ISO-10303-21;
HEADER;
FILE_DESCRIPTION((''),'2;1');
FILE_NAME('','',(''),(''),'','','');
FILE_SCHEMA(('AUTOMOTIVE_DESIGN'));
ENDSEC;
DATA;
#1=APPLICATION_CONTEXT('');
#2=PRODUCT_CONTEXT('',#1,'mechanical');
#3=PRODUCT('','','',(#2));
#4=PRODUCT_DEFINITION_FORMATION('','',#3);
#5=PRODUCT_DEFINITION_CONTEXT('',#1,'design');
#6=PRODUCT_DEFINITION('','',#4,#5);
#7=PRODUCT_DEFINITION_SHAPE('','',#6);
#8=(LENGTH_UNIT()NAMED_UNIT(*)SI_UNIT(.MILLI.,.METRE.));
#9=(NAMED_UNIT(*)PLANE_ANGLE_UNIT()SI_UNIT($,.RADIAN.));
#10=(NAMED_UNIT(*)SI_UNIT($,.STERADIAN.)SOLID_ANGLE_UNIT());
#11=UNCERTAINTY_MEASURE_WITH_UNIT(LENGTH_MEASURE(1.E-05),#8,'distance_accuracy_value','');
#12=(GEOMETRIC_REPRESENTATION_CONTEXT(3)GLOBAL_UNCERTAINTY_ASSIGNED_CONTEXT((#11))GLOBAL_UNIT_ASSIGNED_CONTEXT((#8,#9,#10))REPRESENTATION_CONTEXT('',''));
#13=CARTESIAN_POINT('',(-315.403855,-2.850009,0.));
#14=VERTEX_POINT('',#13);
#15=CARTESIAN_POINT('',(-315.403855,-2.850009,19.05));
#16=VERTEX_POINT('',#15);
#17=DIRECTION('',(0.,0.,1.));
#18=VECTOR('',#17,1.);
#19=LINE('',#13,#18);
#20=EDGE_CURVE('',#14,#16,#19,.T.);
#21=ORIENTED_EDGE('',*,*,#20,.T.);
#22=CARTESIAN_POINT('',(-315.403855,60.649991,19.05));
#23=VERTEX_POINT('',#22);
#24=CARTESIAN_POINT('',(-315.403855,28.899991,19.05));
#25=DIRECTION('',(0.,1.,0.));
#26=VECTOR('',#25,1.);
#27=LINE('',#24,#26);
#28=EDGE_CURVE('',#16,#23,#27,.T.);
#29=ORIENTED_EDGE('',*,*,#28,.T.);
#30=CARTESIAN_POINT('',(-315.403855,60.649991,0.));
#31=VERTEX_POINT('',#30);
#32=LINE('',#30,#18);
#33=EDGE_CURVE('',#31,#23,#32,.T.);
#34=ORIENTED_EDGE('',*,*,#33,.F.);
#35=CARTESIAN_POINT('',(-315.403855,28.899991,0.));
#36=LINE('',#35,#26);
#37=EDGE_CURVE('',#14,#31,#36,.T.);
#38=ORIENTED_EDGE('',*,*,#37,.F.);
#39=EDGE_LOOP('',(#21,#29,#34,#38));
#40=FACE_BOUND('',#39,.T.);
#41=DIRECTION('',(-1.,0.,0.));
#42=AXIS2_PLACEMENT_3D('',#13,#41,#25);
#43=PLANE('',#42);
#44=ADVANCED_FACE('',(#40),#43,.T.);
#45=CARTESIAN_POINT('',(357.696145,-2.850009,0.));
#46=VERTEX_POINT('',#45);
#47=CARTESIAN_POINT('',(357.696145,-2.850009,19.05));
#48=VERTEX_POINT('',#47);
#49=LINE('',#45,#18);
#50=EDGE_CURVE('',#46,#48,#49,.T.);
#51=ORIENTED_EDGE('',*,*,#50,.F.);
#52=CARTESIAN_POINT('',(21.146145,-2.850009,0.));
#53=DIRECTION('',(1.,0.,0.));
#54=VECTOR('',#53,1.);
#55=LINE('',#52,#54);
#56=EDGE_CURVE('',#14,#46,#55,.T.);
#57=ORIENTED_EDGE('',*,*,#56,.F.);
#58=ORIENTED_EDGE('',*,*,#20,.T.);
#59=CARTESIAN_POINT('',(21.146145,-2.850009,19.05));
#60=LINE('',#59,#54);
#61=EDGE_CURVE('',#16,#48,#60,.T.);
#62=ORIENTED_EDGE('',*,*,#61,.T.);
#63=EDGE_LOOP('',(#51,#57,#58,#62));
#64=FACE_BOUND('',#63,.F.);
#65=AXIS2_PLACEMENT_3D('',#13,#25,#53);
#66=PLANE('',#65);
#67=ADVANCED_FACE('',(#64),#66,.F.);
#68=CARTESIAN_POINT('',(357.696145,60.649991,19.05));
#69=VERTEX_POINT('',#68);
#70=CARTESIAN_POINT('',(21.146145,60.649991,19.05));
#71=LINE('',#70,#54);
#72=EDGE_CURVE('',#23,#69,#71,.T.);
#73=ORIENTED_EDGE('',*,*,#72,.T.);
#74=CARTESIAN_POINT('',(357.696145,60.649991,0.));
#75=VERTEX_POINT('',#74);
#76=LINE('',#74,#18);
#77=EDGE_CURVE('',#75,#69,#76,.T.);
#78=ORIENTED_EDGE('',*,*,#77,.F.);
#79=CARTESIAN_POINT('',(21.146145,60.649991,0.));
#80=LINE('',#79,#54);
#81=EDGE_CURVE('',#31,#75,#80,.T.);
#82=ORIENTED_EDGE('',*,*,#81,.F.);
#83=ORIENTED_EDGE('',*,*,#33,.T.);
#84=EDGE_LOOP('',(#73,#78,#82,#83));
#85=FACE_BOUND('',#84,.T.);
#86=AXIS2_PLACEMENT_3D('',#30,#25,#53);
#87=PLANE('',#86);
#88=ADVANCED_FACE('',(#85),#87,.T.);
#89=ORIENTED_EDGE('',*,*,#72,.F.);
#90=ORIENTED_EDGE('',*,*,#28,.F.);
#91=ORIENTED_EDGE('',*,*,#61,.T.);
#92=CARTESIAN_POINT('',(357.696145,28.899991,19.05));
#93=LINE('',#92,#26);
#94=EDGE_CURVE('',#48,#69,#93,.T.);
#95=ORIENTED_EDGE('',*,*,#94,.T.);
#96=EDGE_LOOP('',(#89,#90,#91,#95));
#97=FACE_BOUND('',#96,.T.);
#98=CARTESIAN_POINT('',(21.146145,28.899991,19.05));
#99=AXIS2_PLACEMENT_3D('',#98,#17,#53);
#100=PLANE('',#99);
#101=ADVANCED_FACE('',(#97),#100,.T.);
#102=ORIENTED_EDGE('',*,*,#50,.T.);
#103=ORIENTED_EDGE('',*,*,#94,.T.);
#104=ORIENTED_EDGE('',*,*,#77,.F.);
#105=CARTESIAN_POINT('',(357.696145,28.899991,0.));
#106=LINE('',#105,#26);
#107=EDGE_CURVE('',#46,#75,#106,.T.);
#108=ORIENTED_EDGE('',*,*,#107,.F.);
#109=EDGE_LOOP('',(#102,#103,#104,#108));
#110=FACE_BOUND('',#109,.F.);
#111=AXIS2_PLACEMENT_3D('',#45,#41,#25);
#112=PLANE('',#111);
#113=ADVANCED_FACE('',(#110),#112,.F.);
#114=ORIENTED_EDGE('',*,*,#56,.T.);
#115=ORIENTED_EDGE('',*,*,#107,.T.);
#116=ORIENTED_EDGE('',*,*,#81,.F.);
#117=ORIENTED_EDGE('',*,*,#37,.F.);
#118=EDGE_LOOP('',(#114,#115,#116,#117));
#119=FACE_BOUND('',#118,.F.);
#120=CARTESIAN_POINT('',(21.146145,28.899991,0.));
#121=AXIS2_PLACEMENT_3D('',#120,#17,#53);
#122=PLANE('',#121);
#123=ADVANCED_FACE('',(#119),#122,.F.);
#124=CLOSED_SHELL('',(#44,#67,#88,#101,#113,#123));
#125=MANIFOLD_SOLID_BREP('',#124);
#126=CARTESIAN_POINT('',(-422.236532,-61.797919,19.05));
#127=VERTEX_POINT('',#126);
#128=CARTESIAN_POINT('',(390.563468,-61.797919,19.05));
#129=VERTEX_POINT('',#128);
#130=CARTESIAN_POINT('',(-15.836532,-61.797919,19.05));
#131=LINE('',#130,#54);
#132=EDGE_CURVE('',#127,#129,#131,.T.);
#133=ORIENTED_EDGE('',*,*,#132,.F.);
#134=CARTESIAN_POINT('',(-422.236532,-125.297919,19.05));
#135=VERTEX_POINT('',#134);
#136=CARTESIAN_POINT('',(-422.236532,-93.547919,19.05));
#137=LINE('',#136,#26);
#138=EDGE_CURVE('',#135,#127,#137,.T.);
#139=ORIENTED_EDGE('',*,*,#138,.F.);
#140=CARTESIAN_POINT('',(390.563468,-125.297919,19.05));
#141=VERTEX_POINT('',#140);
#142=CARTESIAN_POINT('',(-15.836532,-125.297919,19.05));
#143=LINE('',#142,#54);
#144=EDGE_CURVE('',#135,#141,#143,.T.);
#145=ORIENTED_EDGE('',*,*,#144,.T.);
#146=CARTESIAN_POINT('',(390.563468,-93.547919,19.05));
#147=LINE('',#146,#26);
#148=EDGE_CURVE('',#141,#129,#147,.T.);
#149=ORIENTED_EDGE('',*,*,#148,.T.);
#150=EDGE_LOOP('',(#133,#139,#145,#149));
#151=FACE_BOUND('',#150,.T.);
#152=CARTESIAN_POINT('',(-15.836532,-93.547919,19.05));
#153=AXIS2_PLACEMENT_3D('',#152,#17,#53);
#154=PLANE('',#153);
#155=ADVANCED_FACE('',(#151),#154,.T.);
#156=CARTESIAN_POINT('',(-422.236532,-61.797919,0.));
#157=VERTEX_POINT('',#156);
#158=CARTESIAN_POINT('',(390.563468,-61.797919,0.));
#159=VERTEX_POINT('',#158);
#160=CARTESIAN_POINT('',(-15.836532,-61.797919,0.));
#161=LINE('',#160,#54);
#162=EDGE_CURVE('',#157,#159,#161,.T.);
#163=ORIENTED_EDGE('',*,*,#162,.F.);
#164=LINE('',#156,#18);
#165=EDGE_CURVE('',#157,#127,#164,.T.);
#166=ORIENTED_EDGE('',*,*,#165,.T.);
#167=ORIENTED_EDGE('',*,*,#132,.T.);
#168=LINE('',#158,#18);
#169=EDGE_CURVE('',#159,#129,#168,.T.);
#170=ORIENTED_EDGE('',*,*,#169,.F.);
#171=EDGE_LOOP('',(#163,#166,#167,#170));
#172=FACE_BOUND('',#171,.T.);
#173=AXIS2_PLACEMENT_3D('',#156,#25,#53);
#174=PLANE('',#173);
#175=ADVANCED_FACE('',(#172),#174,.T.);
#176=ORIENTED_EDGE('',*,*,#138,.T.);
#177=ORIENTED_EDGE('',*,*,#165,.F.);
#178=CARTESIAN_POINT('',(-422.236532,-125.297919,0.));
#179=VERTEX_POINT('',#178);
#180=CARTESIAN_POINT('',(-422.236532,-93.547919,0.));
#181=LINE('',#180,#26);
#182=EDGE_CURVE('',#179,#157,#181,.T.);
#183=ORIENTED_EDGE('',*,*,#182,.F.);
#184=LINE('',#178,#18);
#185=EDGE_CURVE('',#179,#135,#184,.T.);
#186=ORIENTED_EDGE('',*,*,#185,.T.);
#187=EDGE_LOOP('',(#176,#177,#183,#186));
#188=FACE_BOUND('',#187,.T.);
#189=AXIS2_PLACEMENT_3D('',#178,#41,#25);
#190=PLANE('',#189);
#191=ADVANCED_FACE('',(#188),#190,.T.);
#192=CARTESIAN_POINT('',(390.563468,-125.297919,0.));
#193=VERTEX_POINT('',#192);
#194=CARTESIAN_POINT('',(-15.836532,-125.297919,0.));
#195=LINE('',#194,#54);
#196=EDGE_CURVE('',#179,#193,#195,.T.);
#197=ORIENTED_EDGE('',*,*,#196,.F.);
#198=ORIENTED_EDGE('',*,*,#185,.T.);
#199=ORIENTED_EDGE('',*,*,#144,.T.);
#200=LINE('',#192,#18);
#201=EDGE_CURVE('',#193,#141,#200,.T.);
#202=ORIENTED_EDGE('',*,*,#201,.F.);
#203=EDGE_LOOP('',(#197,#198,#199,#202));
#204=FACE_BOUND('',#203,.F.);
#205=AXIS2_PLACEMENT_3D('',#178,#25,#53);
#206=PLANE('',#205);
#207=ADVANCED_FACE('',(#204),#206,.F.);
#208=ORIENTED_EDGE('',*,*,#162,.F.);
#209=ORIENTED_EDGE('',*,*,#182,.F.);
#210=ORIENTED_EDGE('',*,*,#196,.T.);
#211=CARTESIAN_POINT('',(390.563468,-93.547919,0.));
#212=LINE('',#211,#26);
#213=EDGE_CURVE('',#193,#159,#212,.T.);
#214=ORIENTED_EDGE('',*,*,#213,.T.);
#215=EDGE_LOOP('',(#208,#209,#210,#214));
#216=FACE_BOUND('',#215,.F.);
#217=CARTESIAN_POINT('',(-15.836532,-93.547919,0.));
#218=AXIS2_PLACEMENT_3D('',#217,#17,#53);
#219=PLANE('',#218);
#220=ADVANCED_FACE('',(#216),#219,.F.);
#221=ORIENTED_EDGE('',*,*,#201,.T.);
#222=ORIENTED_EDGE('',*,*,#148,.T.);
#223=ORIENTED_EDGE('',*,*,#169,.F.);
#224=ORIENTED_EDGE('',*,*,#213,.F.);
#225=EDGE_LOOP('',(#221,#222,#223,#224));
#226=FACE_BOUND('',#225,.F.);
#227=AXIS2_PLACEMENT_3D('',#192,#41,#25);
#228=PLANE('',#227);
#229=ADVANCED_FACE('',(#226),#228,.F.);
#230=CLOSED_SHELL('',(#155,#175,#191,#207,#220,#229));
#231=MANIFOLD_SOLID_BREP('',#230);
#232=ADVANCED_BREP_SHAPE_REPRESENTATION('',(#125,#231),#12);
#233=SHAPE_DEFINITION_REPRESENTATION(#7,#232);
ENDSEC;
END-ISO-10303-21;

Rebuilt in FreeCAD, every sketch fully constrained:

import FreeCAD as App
import Part
import Sketcher
Q = App.Units.Quantity

doc = App.newDocument("Part")
body = doc.addObject("PartDesign::Body", "Body")
body.AllowCompound = True

# Sketch on XY plane
sketch1 = body.newObject("Sketcher::SketchObject", "Sketch")
sketch1.AttachmentSupport = (doc.getObject("XY_Plane"), [""])
sketch1.MapMode = "FlatFace"
sketch1.addGeometry(Part.LineSegment(App.Vector(-315, 61, 0), App.Vector(-315, -3, 0)), False)
sketch1.addGeometry(Part.LineSegment(App.Vector(-315, -3, 0), App.Vector(358, -3, 0)), False)
sketch1.addGeometry(Part.LineSegment(App.Vector(358, -3, 0), App.Vector(358, 61, 0)), False)
sketch1.addGeometry(Part.LineSegment(App.Vector(358, 61, 0), App.Vector(-315, 61, 0)), False)
sketch1.addGeometry(Part.LineSegment(App.Vector(-422, -62, 0), App.Vector(-422, -125, 0)), False)
sketch1.addGeometry(Part.LineSegment(App.Vector(-422, -125, 0), App.Vector(391, -125, 0)), False)
sketch1.addGeometry(Part.LineSegment(App.Vector(391, -125, 0), App.Vector(391, -62, 0)), False)
sketch1.addGeometry(Part.LineSegment(App.Vector(391, -62, 0), App.Vector(-422, -62, 0)), False)
sketch1.addConstraint(Sketcher.Constraint("Coincident", 0, 2, 1, 1))
sketch1.addConstraint(Sketcher.Constraint("Coincident", 1, 2, 2, 1))
sketch1.addConstraint(Sketcher.Constraint("Coincident", 2, 2, 3, 1))
sketch1.addConstraint(Sketcher.Constraint("Coincident", 3, 2, 0, 1))
sketch1.addConstraint(Sketcher.Constraint("Coincident", 4, 2, 5, 1))
sketch1.addConstraint(Sketcher.Constraint("Coincident", 5, 2, 6, 1))
sketch1.addConstraint(Sketcher.Constraint("Coincident", 6, 2, 7, 1))
sketch1.addConstraint(Sketcher.Constraint("Coincident", 7, 2, 4, 1))
sketch1.addConstraint(Sketcher.Constraint("Vertical", 0))
sketch1.addConstraint(Sketcher.Constraint("Horizontal", 1))
sketch1.addConstraint(Sketcher.Constraint("Vertical", 2))
sketch1.addConstraint(Sketcher.Constraint("Horizontal", 3))
sketch1.addConstraint(Sketcher.Constraint("Vertical", 4))
sketch1.addConstraint(Sketcher.Constraint("Horizontal", 5))
sketch1.addConstraint(Sketcher.Constraint("Vertical", 6))
sketch1.addConstraint(Sketcher.Constraint("Horizontal", 7))
sketch1.addConstraint(Sketcher.Constraint("Equal", 2, 4))
sketch1.addConstraint(Sketcher.Constraint("DistanceX", 5, 1, 5, 2, Q("32 in")))
sketch1.addConstraint(Sketcher.Constraint("DistanceX", 1, 1, 1, 2, Q("26.5 in")))
sketch1.addConstraint(Sketcher.Constraint("DistanceY", 0, 2, 0, 1, Q("2.5 in")))
sketch1.addConstraint(Sketcher.Constraint("DistanceY", 0, 2, -1, 1, Q("2.850009 mm")))
sketch1.addConstraint(Sketcher.Constraint("DistanceX", 4, 2, -1, 1, Q("422.236532 mm")))
sketch1.addConstraint(Sketcher.Constraint("DistanceY", 4, 2, -1, 1, Q("125.297919 mm")))
sketch1.addConstraint(Sketcher.Constraint("DistanceX", 0, 2, -1, 1, Q("315.403855 mm")))
pad1 = body.newObject("PartDesign::Pad", "Pad")
pad1.Profile = sketch1
pad1.Length = Q("0.75 in")

doc.recompute()
